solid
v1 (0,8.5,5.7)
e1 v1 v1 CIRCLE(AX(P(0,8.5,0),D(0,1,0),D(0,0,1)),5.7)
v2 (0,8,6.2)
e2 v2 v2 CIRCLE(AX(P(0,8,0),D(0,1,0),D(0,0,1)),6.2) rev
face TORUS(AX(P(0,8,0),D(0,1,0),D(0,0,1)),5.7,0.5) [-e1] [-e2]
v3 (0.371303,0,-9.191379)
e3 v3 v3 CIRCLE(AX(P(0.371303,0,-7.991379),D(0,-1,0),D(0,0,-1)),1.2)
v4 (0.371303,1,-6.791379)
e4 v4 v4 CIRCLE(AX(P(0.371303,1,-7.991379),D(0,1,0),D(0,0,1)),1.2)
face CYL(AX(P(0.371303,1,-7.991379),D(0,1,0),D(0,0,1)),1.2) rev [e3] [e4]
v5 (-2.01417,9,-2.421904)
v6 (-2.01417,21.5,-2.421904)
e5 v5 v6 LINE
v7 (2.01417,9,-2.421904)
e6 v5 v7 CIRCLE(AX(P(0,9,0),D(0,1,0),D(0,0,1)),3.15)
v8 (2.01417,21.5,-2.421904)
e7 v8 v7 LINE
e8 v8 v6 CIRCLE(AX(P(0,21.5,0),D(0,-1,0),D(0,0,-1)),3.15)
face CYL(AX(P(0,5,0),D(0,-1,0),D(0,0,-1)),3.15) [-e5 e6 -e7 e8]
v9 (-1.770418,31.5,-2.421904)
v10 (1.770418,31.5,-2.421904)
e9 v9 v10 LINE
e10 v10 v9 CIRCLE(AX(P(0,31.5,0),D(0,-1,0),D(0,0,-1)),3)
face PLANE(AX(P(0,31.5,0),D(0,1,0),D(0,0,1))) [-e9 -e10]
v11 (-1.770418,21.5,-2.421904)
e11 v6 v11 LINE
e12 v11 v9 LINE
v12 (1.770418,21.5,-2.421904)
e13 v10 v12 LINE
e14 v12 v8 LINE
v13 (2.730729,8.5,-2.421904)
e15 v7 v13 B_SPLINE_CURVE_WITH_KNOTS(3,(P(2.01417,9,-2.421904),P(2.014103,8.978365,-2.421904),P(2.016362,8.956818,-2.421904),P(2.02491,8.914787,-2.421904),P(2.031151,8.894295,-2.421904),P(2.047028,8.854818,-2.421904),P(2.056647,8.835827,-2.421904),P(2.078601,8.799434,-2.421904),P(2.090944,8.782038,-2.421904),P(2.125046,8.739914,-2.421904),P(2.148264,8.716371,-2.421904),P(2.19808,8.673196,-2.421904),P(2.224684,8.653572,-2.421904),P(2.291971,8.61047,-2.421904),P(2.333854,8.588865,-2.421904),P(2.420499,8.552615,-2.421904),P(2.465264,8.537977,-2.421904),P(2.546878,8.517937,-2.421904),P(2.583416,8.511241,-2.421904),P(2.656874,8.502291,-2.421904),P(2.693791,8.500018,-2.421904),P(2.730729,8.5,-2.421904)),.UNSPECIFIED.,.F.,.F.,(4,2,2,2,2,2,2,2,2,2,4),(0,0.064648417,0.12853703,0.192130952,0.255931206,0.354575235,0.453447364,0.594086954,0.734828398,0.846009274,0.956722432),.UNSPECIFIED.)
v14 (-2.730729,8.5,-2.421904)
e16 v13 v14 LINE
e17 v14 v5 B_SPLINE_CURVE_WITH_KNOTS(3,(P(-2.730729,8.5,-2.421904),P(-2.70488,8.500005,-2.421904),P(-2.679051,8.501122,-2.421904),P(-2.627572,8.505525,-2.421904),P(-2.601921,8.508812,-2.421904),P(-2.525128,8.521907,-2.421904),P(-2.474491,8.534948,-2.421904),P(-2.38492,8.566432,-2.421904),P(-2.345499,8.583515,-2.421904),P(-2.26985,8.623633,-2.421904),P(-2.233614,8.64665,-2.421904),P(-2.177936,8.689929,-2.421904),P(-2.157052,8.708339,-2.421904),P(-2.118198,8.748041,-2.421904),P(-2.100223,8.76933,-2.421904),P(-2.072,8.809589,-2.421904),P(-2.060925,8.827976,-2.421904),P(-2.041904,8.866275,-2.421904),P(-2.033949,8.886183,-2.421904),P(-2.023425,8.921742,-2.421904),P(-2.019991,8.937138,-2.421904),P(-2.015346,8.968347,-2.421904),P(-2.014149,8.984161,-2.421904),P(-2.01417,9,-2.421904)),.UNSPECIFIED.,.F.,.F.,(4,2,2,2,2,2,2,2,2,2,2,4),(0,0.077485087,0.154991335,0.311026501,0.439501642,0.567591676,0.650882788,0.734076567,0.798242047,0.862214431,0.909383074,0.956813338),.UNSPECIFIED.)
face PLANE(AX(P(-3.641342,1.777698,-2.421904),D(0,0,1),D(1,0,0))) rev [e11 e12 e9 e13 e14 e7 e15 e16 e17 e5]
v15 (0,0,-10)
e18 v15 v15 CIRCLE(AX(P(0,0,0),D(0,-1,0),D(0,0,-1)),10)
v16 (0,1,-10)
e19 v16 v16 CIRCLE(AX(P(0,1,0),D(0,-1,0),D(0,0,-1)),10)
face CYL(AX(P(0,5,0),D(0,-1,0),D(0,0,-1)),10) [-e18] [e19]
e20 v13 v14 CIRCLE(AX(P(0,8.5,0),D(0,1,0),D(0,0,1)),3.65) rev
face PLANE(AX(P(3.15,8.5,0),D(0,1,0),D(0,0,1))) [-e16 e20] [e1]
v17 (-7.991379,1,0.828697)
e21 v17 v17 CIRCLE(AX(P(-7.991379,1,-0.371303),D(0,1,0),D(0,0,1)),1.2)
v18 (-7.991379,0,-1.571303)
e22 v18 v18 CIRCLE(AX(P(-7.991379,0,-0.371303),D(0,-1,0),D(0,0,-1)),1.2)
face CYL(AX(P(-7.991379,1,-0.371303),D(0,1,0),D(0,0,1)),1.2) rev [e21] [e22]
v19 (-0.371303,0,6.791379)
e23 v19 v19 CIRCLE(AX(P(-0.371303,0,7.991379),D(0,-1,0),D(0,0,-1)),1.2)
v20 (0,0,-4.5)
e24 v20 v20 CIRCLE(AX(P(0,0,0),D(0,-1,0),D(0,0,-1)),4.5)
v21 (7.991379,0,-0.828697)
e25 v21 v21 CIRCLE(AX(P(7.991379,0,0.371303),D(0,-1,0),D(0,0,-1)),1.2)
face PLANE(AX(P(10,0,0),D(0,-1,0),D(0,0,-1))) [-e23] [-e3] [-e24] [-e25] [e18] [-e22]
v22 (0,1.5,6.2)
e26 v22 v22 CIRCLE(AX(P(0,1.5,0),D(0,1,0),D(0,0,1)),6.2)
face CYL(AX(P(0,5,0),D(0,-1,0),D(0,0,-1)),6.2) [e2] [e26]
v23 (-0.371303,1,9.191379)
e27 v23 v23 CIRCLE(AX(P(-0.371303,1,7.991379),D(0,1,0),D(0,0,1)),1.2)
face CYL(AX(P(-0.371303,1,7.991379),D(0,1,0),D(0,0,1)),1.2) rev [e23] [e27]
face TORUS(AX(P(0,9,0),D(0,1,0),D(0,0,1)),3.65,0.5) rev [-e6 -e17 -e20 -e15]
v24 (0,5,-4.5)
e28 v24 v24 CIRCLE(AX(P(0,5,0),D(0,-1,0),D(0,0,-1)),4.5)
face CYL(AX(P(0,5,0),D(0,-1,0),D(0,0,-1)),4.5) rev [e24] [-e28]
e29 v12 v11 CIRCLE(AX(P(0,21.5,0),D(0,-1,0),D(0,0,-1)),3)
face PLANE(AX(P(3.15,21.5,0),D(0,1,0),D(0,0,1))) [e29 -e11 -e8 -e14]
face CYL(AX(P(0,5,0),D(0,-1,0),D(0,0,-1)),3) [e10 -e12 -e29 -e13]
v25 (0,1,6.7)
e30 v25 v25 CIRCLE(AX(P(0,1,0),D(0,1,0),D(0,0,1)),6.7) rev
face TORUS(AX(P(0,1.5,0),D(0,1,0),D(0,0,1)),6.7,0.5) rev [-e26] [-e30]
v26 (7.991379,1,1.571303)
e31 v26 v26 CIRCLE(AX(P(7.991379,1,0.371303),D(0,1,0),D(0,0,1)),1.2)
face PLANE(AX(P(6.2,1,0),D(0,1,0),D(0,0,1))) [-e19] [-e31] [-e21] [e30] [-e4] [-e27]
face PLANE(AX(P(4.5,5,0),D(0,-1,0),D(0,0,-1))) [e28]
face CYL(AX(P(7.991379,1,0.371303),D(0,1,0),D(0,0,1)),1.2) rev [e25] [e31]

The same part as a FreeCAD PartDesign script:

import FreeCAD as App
import Part
import Sketcher

V = App.Vector
Q = App.Units.Quantity


def edges_at(feature, points):
    """Names of the edges that pass closest to the given points."""
    edges = feature.Shape.Edges
    near = lambda p: min(range(len(edges)), key=lambda i: edges[i].distToShape(Part.Vertex(*p))[0])
    return sorted({f"Edge{near(p) + 1}" for p in points})

doc = App.newDocument("Part")
body = doc.addObject("PartDesign::Body", "Body")

# Sketch on XY plane
sketch1 = body.newObject("Sketcher::SketchObject", "Sketch")
sketch1.AttachmentSupport = (doc.getObject("XY_Plane"), [""])
sketch1.MapMode = "FlatFace"
sketch1.addGeometry(Part.LineSegment(V(3, 31.5, 0), V(0, 31.5, 0)), False)
sketch1.addGeometry(Part.LineSegment(V(0, 31.5, 0), V(0, 5, 0)), False)
sketch1.addGeometry(Part.LineSegment(V(0, 5, 0), V(4.5, 5, 0)), False)
sketch1.addGeometry(Part.LineSegment(V(4.5, 5, 0), V(4.5, 0, 0)), False)
sketch1.addGeometry(Part.LineSegment(V(4.5, 0, 0), V(10, 0, 0)), False)
sketch1.addGeometry(Part.LineSegment(V(10, 0, 0), V(10, 1, 0)), False)
sketch1.addGeometry(Part.LineSegment(V(10, 1, 0), V(6.2, 1, 0)), False)
sketch1.addGeometry(Part.LineSegment(V(6.2, 1, 0), V(6.2, 8.5, 0)), False)
sketch1.addGeometry(Part.LineSegment(V(6.2, 8.5, 0), V(3.15, 8.5, 0)), False)
sketch1.addGeometry(Part.LineSegment(V(3.15, 8.5, 0), V(3.15, 21.5, 0)), False)
sketch1.addGeometry(Part.LineSegment(V(3.15, 21.5, 0), V(3, 21.5, 0)), False)
sketch1.addGeometry(Part.LineSegment(V(3, 21.5, 0), V(3, 31.5, 0)), False)
sketch1.addConstraint(Sketcher.Constraint("Coincident", 0, 2, 1, 1))
sketch1.addConstraint(Sketcher.Constraint("Coincident", 1, 2, 2, 1))
sketch1.addConstraint(Sketcher.Constraint("Coincident", 2, 2, 3, 1))
sketch1.addConstraint(Sketcher.Constraint("Coincident", 3, 2, 4, 1))
sketch1.addConstraint(Sketcher.Constraint("Coincident", 4, 2, 5, 1))
sketch1.addConstraint(Sketcher.Constraint("Coincident", 5, 2, 6, 1))
sketch1.addConstraint(Sketcher.Constraint("Coincident", 6, 2, 7, 1))
sketch1.addConstraint(Sketcher.Constraint("Coincident", 7, 2, 8, 1))
sketch1.addConstraint(Sketcher.Constraint("Coincident", 8, 2, 9, 1))
sketch1.addConstraint(Sketcher.Constraint("Coincident", 9, 2, 10, 1))
sketch1.addConstraint(Sketcher.Constraint("Coincident", 10, 2, 11, 1))
sketch1.addConstraint(Sketcher.Constraint("Coincident", 11, 2, 0, 1))
sketch1.addConstraint(Sketcher.Constraint("Horizontal", 0))
sketch1.addConstraint(Sketcher.Constraint("Vertical", 1))
sketch1.addConstraint(Sketcher.Constraint("Horizontal", 2))
sketch1.addConstraint(Sketcher.Constraint("Vertical", 3))
sketch1.addConstraint(Sketcher.Constraint("Horizontal", 4))
sketch1.addConstraint(Sketcher.Constraint("Vertical", 5))
sketch1.addConstraint(Sketcher.Constraint("Horizontal", 6))
sketch1.addConstraint(Sketcher.Constraint("Vertical", 7))
sketch1.addConstraint(Sketcher.Constraint("Horizontal", 8))
sketch1.addConstraint(Sketcher.Constraint("Vertical", 9))
sketch1.addConstraint(Sketcher.Constraint("Horizontal", 10))
sketch1.addConstraint(Sketcher.Constraint("Vertical", 11))
sketch1.addConstraint(Sketcher.Constraint("PointOnObject", 0, 2, -2))
sketch1.addConstraint(Sketcher.Constraint("PointOnObject", 3, 2, -1))
sketch1.addConstraint(Sketcher.Constraint("DistanceX", 0, 2, 0, 1, Q("3 mm")))
sketch1.addConstraint(Sketcher.Constraint("DistanceY", 3, 2, 3, 1, Q("5 mm")))
sketch1.addConstraint(Sketcher.Constraint("DistanceY", 5, 1, 5, 2, Q("1 mm")))
sketch1.addConstraint(Sketcher.Constraint("DistanceY", 9, 1, 9, 2, Q("13 mm")))
sketch1.addConstraint(Sketcher.Constraint("DistanceY", 11, 1, 11, 2, Q("10 mm")))
sketch1.addConstraint(Sketcher.Constraint("DistanceX", 2, 1, 2, 2, Q("4.5 mm")))
sketch1.addConstraint(Sketcher.Constraint("DistanceX", 4, 1, 4, 2, Q("5.5 mm")))
sketch1.addConstraint(Sketcher.Constraint("DistanceX", 6, 2, 6, 1, Q("3.8 mm")))
sketch1.addConstraint(Sketcher.Constraint("DistanceY", 1, 2, 1, 1, Q("26.5 mm")))
sketch1.addConstraint(Sketcher.Constraint("DistanceX", 8, 2, 8, 1, Q("3.05 mm")))
revolution = body.newObject("PartDesign::Revolution", "Revolution")
revolution.Profile = sketch1
revolution.ReferenceAxis = (sketch1, ["V_Axis"])
revolution.Angle = 360

# Sketch on XZ plane
sketch2 = body.newObject("Sketcher::SketchObject", "Sketch001")
sketch2.AttachmentSupport = (doc.getObject("XZ_Plane"), [""])
sketch2.MapMode = "FlatFace"
sketch2.AttachmentOffset = App.Placement(V(0, 0, -31.5), App.Rotation())
sketch2.addGeometry(Part.LineSegment(V(-3.641342, -3.807953, 0), V(-3.641342, -2.421904, 0)), False)
sketch2.addGeometry(Part.LineSegment(V(-3.641342, -2.421904, 0), V(2.936515, -2.421904, 0)), False)
sketch2.addGeometry(Part.LineSegment(V(2.936515, -2.421904, 0), V(2.936515, -3.807953, 0)), False)
sketch2.addGeometry(Part.LineSegment(V(2.936515, -3.807953, 0), V(-3.641342, -3.807953, 0)), False)
sketch2.addConstraint(Sketcher.Constraint("Coincident", 0, 2, 1, 1))
sketch2.addConstraint(Sketcher.Constraint("Coincident", 1, 2, 2, 1))
sketch2.addConstraint(Sketcher.Constraint("Coincident", 2, 2, 3, 1))
sketch2.addConstraint(Sketcher.Constraint("Coincident", 3, 2, 0, 1))
sketch2.addConstraint(Sketcher.Constraint("Vertical", 0))
sketch2.addConstraint(Sketcher.Constraint("Horizontal", 1))
sketch2.addConstraint(Sketcher.Constraint("Vertical", 2))
sketch2.addConstraint(Sketcher.Constraint("Horizontal", 3))
sketch2.addConstraint(Sketcher.Constraint("DistanceY", 0, 1, 0, 2, Q("1.386049 mm")))
sketch2.addConstraint(Sketcher.Constraint("DistanceX", 1, 1, 1, 2, Q("6.577858 mm")))
sketch2.addConstraint(Sketcher.Constraint("DistanceX", 0, 2, -1, 1, Q("3.641342 mm")))
sketch2.addConstraint(Sketcher.Constraint("DistanceY", 0, 2, -1, 1, Q("2.421904 mm")))
pocket1 = body.newObject("PartDesign::Pocket", "Pocket")
pocket1.Profile = sketch2
pocket1.Length = 23
pocket1.Reversed = True

# Sketch on XZ plane
sketch3 = body.newObject("Sketcher::SketchObject", "Sketch002")
sketch3.AttachmentSupport = (doc.getObject("XZ_Plane"), [""])
sketch3.MapMode = "FlatFace"
sketch3.AttachmentOffset = App.Placement(V(0, 0, -1), App.Rotation())
sketch3.addGeometry(Part.Circle(V(0.371303, -7.991379, 0), V(0, 0, 1), 1.2), False)
sketch3.addConstraint(Sketcher.Constraint("Diameter", 0, Q("2.4 mm")))
sketch3.addConstraint(Sketcher.Constraint("DistanceY", 0, 3, -1, 1, Q("7.991379 mm")))
sketch3.addConstraint(Sketcher.Constraint("DistanceX", -1, 1, 0, 3, Q("0.371303 mm")))
doc.recompute()
hole = body.newObject("PartDesign::Hole", "Hole")
hole.Profile = sketch3
hole.ThreadType = "None"
hole.Diameter = 2.4
hole.DepthType = "Dimension"
hole.Depth = 1.001
hole.DrillPoint = "Flat"
hole.Reversed = True
doc.recompute()

polarpattern = body.newObject("PartDesign::PolarPattern", "PolarPattern")
polarpattern.Originals = [hole]
polarpattern.Axis = (doc.getObject("Y_Axis"), [""])
polarpattern.Angle = 360
polarpattern.Occurrences = 4
body.Tip = polarpattern
doc.recompute()

fillet = body.newObject("PartDesign::Fillet", "Fillet")
fillet.Base = (polarpattern, edges_at(polarpattern, [(-6.2, 1, 0), (-6.2, 8.5, 0), (0, 8.5, 3.15)]))
fillet.Radius = 0.5

doc.recompute()
